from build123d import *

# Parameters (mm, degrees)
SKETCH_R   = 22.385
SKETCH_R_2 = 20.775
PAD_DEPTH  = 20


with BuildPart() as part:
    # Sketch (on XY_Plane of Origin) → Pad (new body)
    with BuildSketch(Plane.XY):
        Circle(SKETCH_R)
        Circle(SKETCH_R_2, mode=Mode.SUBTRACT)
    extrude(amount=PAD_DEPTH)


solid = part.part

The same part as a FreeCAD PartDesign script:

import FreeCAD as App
import Part
import Sketcher

V = App.Vector
Q = App.Units.Quantity

doc = App.newDocument("Part")
params = doc.addObject("Spreadsheet::Sheet", "Params")
for row, (alias, value) in enumerate([
    ("sketch1_diameter", "44.77 mm"),
    ("sketch1_diameter2", "41.55 mm"),
    ("pad1_length", "20 mm"),
], start=1):
    params.set(f"A{row}", alias)
    params.set(f"B{row}", "=" + value)
    params.setAlias(f"B{row}", alias)

body = doc.addObject("PartDesign::Body", "Body")

sketch1 = doc.addObject("Sketcher::SketchObject", "Sketch")
body.addObject(sketch1)
sketch1.AttachmentSupport = (doc.XY_Plane, [""])
sketch1.MapMode = "FlatFace"
sketch1.addGeometry([
    Part.Circle(V(0, 0, 0), V(0, 0, 1), 22),
    Part.Circle(V(0, 0, 0), V(0, 0, 1), 21),
], False)
sketch1.addConstraint([
    Sketcher.Constraint("Coincident", 0, 3, -1, 1),
    Sketcher.Constraint("Coincident", 1, 3, -1, 1),
    Sketcher.Constraint("Diameter", 0, Q("44.77 mm")),
    Sketcher.Constraint("Diameter", 1, Q("41.55 mm")),
])
sketch1.setExpression("Constraints[2]", "Params.sketch1_diameter")
sketch1.setExpression("Constraints[3]", "Params.sketch1_diameter2")
pad1 = doc.addObject("PartDesign::Pad", "Pad")
body.addObject(pad1)
pad1.Profile = sketch1
pad1.setExpression("Length", "Params.pad1_length")

doc.recompute()
